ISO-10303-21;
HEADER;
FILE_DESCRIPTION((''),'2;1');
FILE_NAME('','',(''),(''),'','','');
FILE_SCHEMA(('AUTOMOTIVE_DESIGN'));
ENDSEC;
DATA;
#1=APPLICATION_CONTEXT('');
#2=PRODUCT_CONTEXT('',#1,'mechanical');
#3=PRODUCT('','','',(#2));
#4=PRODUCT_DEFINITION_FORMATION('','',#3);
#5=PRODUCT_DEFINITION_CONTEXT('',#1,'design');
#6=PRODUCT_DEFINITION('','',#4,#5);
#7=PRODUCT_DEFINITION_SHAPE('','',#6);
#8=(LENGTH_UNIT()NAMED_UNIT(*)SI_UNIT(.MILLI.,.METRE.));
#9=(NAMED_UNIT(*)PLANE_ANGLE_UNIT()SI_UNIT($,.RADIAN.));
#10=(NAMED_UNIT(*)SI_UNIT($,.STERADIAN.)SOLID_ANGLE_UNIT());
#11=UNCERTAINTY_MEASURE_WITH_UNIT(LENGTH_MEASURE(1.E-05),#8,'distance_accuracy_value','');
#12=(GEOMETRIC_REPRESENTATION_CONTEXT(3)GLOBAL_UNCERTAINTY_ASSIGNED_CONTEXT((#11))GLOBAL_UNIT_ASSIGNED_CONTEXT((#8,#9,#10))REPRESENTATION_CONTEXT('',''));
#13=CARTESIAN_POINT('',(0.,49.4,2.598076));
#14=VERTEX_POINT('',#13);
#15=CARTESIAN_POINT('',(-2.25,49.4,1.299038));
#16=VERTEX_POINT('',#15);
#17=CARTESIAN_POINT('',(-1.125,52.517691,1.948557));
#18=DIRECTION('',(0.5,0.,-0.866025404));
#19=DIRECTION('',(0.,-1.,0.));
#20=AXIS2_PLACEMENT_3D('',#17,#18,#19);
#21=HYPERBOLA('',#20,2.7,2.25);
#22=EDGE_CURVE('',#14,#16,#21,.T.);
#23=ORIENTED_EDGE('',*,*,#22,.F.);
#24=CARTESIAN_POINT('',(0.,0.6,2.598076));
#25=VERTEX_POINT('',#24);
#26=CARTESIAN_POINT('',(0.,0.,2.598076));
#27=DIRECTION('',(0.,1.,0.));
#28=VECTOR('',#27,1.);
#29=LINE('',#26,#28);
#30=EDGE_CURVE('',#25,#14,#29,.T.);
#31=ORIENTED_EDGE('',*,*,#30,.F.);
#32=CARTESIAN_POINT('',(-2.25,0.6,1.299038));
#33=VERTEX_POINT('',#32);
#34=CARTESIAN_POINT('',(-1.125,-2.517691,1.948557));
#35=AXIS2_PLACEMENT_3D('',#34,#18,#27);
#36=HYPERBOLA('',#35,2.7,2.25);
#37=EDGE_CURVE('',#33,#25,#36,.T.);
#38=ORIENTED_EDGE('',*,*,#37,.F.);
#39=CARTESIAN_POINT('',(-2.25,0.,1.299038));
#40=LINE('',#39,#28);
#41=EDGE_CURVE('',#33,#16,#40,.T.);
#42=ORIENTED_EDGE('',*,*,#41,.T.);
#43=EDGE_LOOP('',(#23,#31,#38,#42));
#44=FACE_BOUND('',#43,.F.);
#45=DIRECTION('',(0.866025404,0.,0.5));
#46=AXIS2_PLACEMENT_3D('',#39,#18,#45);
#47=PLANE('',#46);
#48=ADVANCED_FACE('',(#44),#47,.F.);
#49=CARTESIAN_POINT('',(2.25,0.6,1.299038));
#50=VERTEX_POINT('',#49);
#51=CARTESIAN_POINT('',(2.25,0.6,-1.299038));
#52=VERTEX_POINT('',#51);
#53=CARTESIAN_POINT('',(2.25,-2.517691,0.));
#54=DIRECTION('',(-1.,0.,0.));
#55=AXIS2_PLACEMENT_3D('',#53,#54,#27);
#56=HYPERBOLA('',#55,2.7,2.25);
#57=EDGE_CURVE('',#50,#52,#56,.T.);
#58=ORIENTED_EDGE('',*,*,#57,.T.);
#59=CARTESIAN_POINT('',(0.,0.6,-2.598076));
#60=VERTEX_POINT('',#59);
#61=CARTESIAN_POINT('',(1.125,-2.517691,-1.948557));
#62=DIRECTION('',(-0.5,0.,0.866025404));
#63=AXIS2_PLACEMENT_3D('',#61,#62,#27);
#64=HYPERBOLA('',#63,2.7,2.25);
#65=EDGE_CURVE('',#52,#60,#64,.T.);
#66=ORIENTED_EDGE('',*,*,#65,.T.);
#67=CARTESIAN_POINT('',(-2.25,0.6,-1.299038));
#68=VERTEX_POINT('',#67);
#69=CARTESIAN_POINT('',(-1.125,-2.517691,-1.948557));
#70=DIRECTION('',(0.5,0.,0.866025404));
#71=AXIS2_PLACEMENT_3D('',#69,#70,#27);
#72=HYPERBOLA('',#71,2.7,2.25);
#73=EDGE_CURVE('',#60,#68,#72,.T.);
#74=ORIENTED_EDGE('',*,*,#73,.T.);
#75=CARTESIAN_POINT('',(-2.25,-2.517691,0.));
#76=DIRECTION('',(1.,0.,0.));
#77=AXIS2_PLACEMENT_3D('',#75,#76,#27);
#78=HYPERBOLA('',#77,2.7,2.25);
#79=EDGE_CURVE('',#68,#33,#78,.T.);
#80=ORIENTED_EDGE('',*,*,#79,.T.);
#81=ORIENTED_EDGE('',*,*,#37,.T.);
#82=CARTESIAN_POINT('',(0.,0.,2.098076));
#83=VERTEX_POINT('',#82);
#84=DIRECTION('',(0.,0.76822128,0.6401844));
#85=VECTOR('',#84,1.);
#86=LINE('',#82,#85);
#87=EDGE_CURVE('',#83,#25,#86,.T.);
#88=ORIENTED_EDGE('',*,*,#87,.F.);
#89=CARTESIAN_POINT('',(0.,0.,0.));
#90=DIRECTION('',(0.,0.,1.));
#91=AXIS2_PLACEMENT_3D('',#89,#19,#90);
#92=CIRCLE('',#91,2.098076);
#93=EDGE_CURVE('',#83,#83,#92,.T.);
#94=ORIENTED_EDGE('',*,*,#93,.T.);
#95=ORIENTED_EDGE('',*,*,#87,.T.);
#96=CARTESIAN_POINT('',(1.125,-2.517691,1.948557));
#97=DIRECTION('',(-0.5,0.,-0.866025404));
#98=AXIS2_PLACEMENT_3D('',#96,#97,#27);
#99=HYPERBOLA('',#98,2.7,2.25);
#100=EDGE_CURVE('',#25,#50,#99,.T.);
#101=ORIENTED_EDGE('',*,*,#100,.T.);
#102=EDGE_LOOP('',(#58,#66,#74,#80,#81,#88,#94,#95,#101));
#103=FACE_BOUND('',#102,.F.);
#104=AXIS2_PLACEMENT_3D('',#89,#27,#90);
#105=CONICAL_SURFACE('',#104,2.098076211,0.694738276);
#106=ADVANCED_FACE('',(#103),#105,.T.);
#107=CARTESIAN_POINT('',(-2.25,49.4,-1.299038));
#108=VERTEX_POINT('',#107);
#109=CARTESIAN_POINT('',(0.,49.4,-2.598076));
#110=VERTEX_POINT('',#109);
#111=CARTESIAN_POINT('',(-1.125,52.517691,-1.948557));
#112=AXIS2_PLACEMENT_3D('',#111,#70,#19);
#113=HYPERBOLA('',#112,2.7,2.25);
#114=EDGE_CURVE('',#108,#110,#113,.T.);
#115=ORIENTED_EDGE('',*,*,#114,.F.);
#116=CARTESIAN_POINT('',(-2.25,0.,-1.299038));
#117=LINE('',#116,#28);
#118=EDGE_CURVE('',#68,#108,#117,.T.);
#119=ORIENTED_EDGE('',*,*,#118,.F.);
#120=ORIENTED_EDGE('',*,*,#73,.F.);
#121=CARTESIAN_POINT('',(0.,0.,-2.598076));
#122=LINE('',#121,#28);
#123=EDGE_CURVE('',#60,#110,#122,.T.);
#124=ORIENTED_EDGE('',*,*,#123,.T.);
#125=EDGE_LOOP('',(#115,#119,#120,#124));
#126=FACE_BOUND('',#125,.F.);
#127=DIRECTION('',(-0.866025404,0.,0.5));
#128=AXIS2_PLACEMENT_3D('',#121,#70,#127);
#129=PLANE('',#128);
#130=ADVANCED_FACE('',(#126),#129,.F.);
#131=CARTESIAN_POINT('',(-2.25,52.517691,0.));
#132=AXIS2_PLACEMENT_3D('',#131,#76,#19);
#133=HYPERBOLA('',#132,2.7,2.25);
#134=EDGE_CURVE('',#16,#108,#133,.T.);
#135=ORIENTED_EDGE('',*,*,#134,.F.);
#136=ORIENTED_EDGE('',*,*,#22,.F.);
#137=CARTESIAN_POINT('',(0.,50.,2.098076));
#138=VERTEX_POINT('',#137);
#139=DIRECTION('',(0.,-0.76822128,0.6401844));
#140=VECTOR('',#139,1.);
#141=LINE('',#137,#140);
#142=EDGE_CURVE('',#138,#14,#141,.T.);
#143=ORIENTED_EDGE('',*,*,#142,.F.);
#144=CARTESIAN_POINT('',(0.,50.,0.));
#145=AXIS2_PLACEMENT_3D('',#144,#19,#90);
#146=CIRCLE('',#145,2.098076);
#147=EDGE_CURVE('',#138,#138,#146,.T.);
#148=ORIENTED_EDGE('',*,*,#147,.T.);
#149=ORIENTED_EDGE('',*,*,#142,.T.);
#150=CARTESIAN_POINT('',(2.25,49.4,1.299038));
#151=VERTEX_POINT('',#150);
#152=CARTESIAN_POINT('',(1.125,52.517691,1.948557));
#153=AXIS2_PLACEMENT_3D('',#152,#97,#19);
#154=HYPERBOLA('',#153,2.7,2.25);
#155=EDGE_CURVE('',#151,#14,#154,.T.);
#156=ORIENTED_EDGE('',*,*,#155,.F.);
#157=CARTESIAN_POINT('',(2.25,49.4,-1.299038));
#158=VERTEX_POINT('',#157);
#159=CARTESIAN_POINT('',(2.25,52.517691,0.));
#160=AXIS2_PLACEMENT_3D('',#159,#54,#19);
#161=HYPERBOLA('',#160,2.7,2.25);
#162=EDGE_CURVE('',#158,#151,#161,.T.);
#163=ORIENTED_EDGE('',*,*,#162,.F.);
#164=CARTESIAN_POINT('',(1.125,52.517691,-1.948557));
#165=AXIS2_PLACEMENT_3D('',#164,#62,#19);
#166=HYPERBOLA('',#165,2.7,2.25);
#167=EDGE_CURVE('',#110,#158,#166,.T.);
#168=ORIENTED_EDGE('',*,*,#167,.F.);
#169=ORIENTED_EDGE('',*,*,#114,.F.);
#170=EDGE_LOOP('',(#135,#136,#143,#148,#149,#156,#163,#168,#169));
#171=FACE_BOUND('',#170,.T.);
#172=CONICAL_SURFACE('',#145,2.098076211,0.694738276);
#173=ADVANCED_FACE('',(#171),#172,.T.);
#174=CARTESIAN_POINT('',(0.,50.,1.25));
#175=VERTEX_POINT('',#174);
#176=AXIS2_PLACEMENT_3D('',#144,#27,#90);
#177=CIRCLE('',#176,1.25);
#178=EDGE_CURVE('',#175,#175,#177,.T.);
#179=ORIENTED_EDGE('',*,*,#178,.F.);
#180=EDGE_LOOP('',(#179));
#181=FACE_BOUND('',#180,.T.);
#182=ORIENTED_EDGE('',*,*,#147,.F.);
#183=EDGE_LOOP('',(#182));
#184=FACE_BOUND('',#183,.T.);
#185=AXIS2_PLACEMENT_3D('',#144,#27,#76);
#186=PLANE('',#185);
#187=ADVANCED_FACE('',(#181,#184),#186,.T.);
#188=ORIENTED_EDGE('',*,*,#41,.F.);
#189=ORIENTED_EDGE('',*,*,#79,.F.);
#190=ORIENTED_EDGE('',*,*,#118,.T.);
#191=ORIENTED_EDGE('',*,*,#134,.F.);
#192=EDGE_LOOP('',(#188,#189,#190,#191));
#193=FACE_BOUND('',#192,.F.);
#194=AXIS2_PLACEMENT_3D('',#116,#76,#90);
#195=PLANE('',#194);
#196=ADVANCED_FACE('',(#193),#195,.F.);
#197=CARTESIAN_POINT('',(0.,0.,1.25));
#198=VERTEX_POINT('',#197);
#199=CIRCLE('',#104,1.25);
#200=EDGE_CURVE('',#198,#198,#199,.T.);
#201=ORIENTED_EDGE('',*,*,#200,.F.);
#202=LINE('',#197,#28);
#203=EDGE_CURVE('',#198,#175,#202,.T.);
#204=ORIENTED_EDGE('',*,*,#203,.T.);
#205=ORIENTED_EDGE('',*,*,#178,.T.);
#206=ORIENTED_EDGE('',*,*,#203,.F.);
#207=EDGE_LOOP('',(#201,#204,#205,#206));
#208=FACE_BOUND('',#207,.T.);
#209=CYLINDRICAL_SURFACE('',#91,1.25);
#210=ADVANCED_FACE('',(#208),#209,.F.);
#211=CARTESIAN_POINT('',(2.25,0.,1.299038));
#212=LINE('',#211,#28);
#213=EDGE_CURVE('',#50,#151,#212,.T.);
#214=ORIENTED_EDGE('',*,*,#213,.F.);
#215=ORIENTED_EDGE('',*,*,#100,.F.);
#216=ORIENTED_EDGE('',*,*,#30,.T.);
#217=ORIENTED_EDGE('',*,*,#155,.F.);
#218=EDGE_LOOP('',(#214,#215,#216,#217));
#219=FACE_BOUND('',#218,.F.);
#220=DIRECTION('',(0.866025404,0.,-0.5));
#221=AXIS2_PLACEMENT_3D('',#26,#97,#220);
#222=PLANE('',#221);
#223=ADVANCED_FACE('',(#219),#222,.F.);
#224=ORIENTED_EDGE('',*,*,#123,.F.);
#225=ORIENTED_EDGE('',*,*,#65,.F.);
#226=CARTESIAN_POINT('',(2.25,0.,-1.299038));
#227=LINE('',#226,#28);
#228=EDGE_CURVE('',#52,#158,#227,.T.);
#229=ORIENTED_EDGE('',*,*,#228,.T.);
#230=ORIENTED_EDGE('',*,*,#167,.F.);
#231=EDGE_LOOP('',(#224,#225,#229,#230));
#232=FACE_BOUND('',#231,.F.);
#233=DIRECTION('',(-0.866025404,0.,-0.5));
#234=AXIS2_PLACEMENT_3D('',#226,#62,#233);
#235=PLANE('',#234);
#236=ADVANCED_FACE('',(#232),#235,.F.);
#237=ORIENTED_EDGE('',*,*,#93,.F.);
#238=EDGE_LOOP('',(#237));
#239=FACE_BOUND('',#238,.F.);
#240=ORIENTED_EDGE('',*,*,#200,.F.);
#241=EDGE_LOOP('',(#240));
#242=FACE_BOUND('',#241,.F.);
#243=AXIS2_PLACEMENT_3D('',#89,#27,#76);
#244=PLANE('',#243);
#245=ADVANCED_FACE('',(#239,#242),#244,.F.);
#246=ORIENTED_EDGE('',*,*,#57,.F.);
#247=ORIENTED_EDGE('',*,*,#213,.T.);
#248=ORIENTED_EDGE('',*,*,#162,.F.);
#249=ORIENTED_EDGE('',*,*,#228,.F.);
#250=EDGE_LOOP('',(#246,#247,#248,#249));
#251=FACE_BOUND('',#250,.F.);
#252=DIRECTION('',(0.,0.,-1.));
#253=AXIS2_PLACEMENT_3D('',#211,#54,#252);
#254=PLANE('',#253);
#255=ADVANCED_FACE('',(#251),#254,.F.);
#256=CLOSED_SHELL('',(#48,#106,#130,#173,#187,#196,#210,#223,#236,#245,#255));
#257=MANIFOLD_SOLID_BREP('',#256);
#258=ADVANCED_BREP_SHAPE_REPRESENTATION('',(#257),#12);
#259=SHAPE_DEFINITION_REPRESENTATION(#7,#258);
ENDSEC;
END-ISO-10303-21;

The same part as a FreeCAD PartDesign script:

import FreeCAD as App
import Part
import Sketcher
Q = App.Units.Quantity

doc = App.newDocument("Part")
body = doc.addObject("PartDesign::Body", "Body")

sketch1 = body.newObject("Sketcher::SketchObject", "Sketch")
sketch1.AttachmentSupport = (doc.getObject("XZ_Plane"), [""])
sketch1.MapMode = "FlatFace"
sketch1.addGeometry([
    Part.LineSegment(App.Vector(0, -2.6, 0), App.Vector(-2.2, -1.3, 0)),
    Part.LineSegment(App.Vector(-2.2, -1.3, 0), App.Vector(-2.2, 1.3, 0)),
    Part.LineSegment(App.Vector(-2.2, 1.3, 0), App.Vector(0, 2.6, 0)),
    Part.LineSegment(App.Vector(0, 2.6, 0), App.Vector(2.2, 1.3, 0)),
    Part.LineSegment(App.Vector(2.2, 1.3, 0), App.Vector(2.2, -1.3, 0)),
    Part.LineSegment(App.Vector(2.2, -1.3, 0), App.Vector(0, -2.6, 0)),
    Part.Circle(App.Vector(0, 0, 0), App.Vector(0, 0, 1), 1.2),
], False)
sketch1.addConstraint([
    Sketcher.Constraint("Coincident", 0, 2, 1, 1),
    Sketcher.Constraint("Coincident", 1, 2, 2, 1),
    Sketcher.Constraint("Coincident", 2, 2, 3, 1),
    Sketcher.Constraint("Coincident", 3, 2, 4, 1),
    Sketcher.Constraint("Coincident", 4, 2, 5, 1),
    Sketcher.Constraint("Coincident", 5, 2, 0, 1),
    Sketcher.Constraint("Vertical", 1),
    Sketcher.Constraint("Vertical", 4),
    Sketcher.Constraint("Coincident", 6, 3, -1, 1),
    Sketcher.Constraint("Symmetric", 0, 2, 3, 2, -1, 1),
    Sketcher.Constraint("Symmetric", 2, 2, 5, 2, -1, 1),
    Sketcher.Constraint("PointOnObject", 2, 2, -2),
    Sketcher.Constraint("Parallel", 2, 5),
    Sketcher.Constraint("Horizontal", 1, 2, 3, 2),
    Sketcher.Constraint("Diameter", 6, Q("2.5 mm")),
    Sketcher.Constraint("Angle", 0, Q("150 deg")),
    Sketcher.Constraint("DistanceX", 1, 2, 3, 2, Q("4.5 mm")),
    Sketcher.Constraint("DistanceY", 1, 1, 1, 2, Q("2.598076 mm")),
])
pad1 = body.newObject("PartDesign::Pad", "Pad")
pad1.Profile = sketch1
pad1.Length = 50
pad1.Reversed = True

sketch2 = body.newObject("Sketcher::SketchObject", "Sketch001")
sketch2.AttachmentSupport = (doc.getObject("YZ_Plane"), [""])
sketch2.MapMode = "FlatFace"
sketch2.addGeometry([
    Part.LineSegment(App.Vector(49.4, 2.6, 0), App.Vector(50, 2.1, 0)),
    Part.LineSegment(App.Vector(50, 2.1, 0), App.Vector(50, 2.6, 0)),
    Part.LineSegment(App.Vector(50, 2.6, 0), App.Vector(49.4, 2.6, 0)),
], False)
sketch2.addConstraint([
    Sketcher.Constraint("Coincident", 0, 2, 1, 1),
    Sketcher.Constraint("Coincident", 1, 2, 2, 1),
    Sketcher.Constraint("Coincident", 2, 2, 0, 1),
    Sketcher.Constraint("Vertical", 1),
    Sketcher.Constraint("Horizontal", 2),
    Sketcher.Constraint("DistanceX", 2, 2, 2, 1, Q("0.6 mm")),
    Sketcher.Constraint("DistanceY", 1, 1, 1, 2, Q("0.5 mm")),
    Sketcher.Constraint("DistanceX", -1, 1, 0, 2, Q("50 mm")),
    Sketcher.Constraint("DistanceY", -1, 1, 0, 2, Q("2.098076 mm")),
])
groove = body.newObject("PartDesign::Groove", "Groove")
groove.Profile = sketch2
groove.ReferenceAxis = (sketch2, ["H_Axis"])
groove.Angle = 360
doc.recompute()

datumplane = body.newObject("PartDesign::Plane", "DatumPlane")
datumplane.AttachmentSupport = (doc.getObject("XZ_Plane"), [""])
datumplane.MapMode = "FlatFace"
datumplane.AttachmentOffset = App.Placement(App.Vector(0, 0, -25), App.Rotation())
mirrored = body.newObject("PartDesign::Mirrored", "Mirrored")
mirrored.Originals = [groove]
mirrored.MirrorPlane = (datumplane, [""])
body.Tip = mirrored

doc.recompute()
